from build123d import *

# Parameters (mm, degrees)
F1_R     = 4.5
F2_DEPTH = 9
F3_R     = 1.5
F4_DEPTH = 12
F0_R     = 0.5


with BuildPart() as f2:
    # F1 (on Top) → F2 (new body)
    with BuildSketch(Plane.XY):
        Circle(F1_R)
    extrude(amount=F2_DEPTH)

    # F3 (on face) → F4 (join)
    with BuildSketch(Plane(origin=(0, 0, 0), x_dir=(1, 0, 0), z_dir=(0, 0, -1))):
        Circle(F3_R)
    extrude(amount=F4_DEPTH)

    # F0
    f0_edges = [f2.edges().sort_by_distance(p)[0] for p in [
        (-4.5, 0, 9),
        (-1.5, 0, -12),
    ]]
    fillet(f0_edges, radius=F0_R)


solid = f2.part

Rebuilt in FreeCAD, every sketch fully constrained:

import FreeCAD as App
import Part
import Sketcher
Q = App.Units.Quantity


def edges_at(feature, points):
    """Names of the edges that pass closest to the given points."""
    edges = feature.Shape.Edges
    near = lambda p: min(range(len(edges)), key=lambda i: edges[i].distToShape(Part.Vertex(*p))[0])
    return sorted({f"Edge{near(p) + 1}" for p in points})

doc = App.newDocument("Part")
params = doc.addObject("Spreadsheet::Sheet", "Params")
for row, (alias, value) in enumerate([
    ("sketch1_diameter", "9 mm"),
    ("pad1_length", "9 mm"),
    ("sketch2_diameter", "3 mm"),
    ("pad2_length", "12 mm"),
    ("fillet_radius", "0.5 mm"),
], start=1):
    params.set(f"A{row}", alias)
    params.set(f"B{row}", "=" + value)
    params.setAlias(f"B{row}", alias)

body = doc.addObject("PartDesign::Body", "Body")

# Sketch on XY plane
sketch1 = body.newObject("Sketcher::SketchObject", "Sketch")
sketch1.AttachmentSupport = (doc.getObject("XY_Plane"), [""])
sketch1.MapMode = "FlatFace"
sketch1.addGeometry(Part.Circle(App.Vector(0, 0, 0), App.Vector(0, 0, 1), 4.5), False)
sketch1.addConstraint(Sketcher.Constraint("Coincident", 0, 3, -1, 1))
sketch1.addConstraint(Sketcher.Constraint("Diameter", 0, Q("9 mm")))
sketch1.setExpression("Constraints[1]", "Params.sketch1_diameter")
pad1 = body.newObject("PartDesign::Pad", "Pad")
pad1.Profile = sketch1
pad1.setExpression("Length", "Params.pad1_length")

# Sketch on XY plane
sketch2 = body.newObject("Sketcher::SketchObject", "Sketch001")
sketch2.AttachmentSupport = (doc.getObject("XY_Plane"), [""])
sketch2.MapMode = "FlatFace"
sketch2.addGeometry(Part.Circle(App.Vector(0, 0, 0), App.Vector(0, 0, 1), 1.5), False)
sketch2.addConstraint(Sketcher.Constraint("Coincident", 0, 3, -1, 1))
sketch2.addConstraint(Sketcher.Constraint("Diameter", 0, Q("3 mm")))
sketch2.setExpression("Constraints[1]", "Params.sketch2_diameter")
pad2 = body.newObject("PartDesign::Pad", "Pad001")
pad2.Profile = sketch2
pad2.setExpression("Length", "Params.pad2_length")
pad2.Reversed = True
doc.recompute()

fillet = body.newObject("PartDesign::Fillet", "Fillet")
fillet.Base = (pad2, edges_at(pad2, [(-4.5, 0, 9), (-1.5, 0, -12)]))
fillet.setExpression("Radius", "Params.fillet_radius")

doc.recompute()
